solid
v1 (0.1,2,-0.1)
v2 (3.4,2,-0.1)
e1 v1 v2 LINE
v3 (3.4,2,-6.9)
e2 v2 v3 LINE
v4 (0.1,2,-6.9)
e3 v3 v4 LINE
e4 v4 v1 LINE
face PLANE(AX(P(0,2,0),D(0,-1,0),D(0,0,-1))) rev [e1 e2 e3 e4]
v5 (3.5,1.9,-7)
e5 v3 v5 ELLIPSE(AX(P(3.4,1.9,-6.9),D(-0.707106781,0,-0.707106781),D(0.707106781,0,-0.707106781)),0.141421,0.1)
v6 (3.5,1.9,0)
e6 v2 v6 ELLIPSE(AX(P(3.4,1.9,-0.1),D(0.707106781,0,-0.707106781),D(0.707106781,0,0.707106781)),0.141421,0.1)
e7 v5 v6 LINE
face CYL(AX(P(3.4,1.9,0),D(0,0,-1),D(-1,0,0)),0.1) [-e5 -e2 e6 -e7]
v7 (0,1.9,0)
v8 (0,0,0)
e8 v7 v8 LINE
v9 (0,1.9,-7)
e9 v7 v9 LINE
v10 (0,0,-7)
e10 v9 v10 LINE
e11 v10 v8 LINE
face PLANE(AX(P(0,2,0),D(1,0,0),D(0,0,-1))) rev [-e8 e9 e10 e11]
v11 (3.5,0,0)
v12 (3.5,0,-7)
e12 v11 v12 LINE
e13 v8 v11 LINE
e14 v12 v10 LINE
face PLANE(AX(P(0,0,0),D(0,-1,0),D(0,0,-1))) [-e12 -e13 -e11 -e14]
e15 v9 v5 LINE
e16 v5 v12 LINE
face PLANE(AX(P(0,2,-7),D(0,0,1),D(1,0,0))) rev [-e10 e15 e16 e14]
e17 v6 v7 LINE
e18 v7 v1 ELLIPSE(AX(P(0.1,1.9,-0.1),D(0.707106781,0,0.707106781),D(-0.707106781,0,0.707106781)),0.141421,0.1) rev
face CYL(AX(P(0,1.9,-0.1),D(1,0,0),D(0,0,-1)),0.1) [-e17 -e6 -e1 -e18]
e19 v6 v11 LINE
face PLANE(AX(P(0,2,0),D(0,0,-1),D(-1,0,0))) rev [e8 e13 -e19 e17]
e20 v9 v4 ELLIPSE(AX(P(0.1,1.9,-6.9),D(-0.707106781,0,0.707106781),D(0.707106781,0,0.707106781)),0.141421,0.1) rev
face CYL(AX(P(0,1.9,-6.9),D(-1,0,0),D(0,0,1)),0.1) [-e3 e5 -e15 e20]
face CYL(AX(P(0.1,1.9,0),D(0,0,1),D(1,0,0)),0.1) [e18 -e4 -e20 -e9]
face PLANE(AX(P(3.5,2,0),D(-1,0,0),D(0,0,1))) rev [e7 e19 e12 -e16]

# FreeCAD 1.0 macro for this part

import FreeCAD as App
import Part
import Sketcher
from FreeCAD import Vector


def edges_at(feature, points):
    """Names of the edges that pass closest to the given points."""
    edges = feature.Shape.Edges
    near = lambda p: min(range(len(edges)), key=lambda i: edges[i].distToShape(Part.Vertex(*p))[0])
    return sorted({f"Edge{near(p) + 1}" for p in points})

doc = App.newDocument("Part")
params = doc.addObject("Spreadsheet::Sheet", "Params")
for row, (alias, value) in enumerate([
    ("sketch1_height", "7 mm"),
    ("sketch1_width", "3.5 mm"),
    ("pad1_length", "2 mm"),
    ("fillet_radius", "0.1 mm"),
], start=1):
    params.set(f"A{row}", alias)
    params.set(f"B{row}", "=" + value)
    params.setAlias(f"B{row}", alias)

body = doc.addObject("PartDesign::Body", "Body")

sketch1 = body.newObject("Sketcher::SketchObject", "Sketch")
sketch1.AttachmentSupport = (doc.getObject("XZ_Plane"), [""])
sketch1.MapMode = "FlatFace"
sketch1.addGeometry([
    Part.LineSegment(Vector(0, -7, 0), Vector(0, 0, 0)),
    Part.LineSegment(Vector(0, 0, 0), Vector(3.5, 0, 0)),
    Part.LineSegment(Vector(3.5, 0, 0), Vector(3.5, -7, 0)),
    Part.LineSegment(Vector(3.5, -7, 0), Vector(0, -7, 0)),
], False)
sketch1.addConstraint([
    Sketcher.Constraint("Coincident", 0, 2, 1, 1),
    Sketcher.Constraint("Coincident", 1, 2, 2, 1),
    Sketcher.Constraint("Coincident", 2, 2, 3, 1),
    Sketcher.Constraint("Coincident", 3, 2, 0, 1),
    Sketcher.Constraint("Vertical", 0),
    Sketcher.Constraint("Horizontal", 1),
    Sketcher.Constraint("Vertical", 2),
    Sketcher.Constraint("Horizontal", 3),
    Sketcher.Constraint("Coincident", 0, 2, -1, 1),
    Sketcher.Constraint("DistanceY", 0, 1, 0, 2, 7.0),
    Sketcher.Constraint("DistanceX", 1, 1, 1, 2, 3.5),
])
sketch1.setExpression("Constraints[9]", "Params.sketch1_height")
sketch1.setExpression("Constraints[10]", "Params.sketch1_width")
pad1 = body.newObject("PartDesign::Pad", "Pad")
pad1.Profile = sketch1
pad1.setExpression("Length", "Params.pad1_length")
pad1.Reversed = True
doc.recompute()

fillet = body.newObject("PartDesign::Fillet", "Fillet")
fillet.Base = (pad1, edges_at(pad1, [
    (3.5, 2, -3.5),
    (1.75, 2, -7),
    (0, 2, -3.5),
    (1.75, 2, 0),
]))
fillet.setExpression("Radius", "Params.fillet_radius")

doc.recompute()
